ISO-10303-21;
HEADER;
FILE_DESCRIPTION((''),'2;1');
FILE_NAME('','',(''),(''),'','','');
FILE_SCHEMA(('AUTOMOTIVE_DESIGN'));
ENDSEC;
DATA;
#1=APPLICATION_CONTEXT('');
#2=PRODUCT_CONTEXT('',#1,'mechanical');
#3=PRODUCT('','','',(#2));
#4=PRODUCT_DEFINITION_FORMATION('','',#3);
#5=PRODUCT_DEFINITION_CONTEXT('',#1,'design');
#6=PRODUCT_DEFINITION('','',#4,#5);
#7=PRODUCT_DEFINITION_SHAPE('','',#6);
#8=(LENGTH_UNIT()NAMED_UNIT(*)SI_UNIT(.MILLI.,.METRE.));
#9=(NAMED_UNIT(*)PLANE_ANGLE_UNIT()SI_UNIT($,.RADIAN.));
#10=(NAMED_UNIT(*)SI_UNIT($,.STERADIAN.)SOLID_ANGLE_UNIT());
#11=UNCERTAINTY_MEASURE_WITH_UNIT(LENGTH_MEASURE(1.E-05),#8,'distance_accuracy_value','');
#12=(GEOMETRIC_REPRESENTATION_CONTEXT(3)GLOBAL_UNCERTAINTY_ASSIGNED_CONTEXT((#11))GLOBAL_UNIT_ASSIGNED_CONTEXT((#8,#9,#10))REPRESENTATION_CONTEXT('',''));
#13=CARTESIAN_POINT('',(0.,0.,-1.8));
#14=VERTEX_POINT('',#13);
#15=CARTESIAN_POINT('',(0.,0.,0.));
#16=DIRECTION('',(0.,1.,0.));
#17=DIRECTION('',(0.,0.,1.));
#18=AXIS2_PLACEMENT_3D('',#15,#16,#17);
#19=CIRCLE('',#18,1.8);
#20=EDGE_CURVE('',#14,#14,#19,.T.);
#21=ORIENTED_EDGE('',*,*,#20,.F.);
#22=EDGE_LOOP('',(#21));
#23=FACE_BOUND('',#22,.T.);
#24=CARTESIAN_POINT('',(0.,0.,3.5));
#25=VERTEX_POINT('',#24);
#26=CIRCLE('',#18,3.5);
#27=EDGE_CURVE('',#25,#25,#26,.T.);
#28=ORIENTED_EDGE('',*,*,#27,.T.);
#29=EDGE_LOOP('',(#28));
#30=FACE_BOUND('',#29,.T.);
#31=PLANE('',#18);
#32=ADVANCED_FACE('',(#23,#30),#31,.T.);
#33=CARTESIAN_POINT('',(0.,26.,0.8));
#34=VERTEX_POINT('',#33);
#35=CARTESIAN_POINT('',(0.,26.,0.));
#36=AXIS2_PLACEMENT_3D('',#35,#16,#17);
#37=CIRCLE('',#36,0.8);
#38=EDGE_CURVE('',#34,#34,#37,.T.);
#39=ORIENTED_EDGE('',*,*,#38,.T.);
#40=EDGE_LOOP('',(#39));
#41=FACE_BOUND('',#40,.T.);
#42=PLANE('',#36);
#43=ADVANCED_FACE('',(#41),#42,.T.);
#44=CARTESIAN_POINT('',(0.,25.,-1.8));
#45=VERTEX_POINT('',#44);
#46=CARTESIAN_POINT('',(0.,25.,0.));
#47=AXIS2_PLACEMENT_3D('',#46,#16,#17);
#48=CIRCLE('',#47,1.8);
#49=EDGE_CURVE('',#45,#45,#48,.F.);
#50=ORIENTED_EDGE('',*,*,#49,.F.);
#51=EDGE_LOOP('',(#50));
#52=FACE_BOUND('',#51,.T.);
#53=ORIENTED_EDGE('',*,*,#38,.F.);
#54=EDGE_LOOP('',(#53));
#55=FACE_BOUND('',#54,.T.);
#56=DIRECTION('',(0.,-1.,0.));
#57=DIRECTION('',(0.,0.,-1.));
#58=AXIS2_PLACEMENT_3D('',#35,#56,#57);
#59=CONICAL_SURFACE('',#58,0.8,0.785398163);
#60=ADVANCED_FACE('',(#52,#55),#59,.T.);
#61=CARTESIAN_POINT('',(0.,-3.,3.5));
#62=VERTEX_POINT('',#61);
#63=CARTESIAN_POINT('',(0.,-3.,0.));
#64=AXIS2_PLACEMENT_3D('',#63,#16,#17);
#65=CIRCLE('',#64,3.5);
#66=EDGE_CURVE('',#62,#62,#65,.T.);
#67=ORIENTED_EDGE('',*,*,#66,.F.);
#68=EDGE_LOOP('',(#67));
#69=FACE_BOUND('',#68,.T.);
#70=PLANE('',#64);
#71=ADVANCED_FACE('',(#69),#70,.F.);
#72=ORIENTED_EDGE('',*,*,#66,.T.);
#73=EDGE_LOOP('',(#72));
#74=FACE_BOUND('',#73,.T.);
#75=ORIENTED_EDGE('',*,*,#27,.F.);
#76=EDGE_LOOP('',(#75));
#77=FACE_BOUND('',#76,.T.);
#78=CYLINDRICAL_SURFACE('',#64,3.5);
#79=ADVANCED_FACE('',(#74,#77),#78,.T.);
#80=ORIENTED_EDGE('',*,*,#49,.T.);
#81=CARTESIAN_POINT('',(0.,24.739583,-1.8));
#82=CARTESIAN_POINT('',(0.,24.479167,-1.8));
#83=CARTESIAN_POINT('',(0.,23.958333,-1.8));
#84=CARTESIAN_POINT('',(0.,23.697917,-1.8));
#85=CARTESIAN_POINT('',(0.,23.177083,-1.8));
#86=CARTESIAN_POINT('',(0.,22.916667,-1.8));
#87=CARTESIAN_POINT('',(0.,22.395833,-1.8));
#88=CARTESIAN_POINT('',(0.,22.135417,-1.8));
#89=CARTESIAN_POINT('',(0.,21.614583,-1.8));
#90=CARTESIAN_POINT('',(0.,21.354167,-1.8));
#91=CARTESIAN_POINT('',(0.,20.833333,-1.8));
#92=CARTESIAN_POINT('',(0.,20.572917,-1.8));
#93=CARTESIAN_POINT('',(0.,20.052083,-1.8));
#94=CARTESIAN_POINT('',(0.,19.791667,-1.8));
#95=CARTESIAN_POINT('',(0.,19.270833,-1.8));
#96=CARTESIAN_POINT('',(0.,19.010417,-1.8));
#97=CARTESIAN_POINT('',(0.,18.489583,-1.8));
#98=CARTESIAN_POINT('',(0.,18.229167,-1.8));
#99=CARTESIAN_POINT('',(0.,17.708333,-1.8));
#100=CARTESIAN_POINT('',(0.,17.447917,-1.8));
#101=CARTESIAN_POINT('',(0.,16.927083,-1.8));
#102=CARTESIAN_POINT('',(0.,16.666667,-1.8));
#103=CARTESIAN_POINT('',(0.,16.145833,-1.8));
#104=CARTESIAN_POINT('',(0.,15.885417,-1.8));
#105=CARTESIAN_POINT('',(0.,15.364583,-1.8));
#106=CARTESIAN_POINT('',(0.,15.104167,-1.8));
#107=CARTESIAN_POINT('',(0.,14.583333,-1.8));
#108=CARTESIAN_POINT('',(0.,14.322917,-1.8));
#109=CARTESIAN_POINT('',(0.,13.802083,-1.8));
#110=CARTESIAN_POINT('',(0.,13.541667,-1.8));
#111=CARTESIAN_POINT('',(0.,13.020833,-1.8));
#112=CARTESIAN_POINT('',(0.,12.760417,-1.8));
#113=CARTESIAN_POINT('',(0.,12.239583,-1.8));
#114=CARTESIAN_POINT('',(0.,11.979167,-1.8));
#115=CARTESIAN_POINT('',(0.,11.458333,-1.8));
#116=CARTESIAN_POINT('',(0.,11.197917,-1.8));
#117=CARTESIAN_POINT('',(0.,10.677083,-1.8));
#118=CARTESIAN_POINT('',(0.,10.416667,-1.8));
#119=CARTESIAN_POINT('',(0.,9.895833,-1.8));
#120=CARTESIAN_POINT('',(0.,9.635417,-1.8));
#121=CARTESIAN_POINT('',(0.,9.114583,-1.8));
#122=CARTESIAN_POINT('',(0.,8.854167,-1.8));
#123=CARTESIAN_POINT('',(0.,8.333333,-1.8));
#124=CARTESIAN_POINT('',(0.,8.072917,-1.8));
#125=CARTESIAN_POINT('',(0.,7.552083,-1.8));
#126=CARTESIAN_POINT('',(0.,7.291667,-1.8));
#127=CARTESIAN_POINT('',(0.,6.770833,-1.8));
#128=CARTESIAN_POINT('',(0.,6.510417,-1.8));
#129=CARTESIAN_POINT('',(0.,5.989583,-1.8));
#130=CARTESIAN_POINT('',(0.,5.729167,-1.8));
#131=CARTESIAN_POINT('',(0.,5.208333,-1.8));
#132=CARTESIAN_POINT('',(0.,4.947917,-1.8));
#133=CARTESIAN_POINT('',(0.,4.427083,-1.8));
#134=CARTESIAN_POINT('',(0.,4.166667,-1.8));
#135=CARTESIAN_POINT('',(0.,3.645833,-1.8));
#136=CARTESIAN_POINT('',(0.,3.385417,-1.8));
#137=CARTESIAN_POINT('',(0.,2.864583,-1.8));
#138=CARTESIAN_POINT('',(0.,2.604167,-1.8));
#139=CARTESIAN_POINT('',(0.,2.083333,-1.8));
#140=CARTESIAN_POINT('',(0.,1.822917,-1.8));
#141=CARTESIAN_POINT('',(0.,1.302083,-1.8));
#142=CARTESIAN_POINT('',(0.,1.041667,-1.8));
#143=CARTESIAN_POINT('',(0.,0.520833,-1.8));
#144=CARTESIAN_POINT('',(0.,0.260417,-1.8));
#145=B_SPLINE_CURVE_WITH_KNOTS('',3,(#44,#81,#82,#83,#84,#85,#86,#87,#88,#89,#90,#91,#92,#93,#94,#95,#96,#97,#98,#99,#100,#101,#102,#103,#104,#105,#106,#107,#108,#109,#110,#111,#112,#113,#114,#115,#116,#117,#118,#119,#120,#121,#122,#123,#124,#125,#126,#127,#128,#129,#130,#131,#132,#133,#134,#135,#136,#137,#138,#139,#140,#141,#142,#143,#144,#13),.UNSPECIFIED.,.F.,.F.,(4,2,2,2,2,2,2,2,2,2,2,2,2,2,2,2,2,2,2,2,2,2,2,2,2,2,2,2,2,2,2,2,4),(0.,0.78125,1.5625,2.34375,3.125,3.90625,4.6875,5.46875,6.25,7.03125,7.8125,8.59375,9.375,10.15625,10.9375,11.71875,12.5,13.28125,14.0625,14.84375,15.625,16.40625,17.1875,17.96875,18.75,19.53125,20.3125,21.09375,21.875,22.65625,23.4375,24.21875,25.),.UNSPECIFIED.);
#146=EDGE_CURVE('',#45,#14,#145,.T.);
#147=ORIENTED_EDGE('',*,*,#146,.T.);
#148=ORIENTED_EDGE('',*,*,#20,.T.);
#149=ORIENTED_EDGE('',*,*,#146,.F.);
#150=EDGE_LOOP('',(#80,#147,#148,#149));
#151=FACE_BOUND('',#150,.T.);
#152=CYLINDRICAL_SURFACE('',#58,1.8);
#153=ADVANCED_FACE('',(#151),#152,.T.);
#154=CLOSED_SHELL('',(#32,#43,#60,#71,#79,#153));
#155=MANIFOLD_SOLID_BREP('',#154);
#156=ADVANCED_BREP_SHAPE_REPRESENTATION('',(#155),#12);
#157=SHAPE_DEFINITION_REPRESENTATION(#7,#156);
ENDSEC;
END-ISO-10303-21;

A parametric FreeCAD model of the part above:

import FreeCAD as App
import Part
import Sketcher


def edges_at(feature, points):
    """Names of the edges that pass closest to the given points."""
    edges = feature.Shape.Edges
    near = lambda p: min(range(len(edges)), key=lambda i: edges[i].distToShape(Part.Vertex(*p))[0])
    return sorted({f"Edge{near(p) + 1}" for p in points})

doc = App.newDocument("Part")
body = doc.addObject("PartDesign::Body", "Body")

sketch1 = body.newObject("Sketcher::SketchObject", "Sketch")
sketch1.AttachmentSupport = (doc.getObject("XZ_Plane"), [""])
sketch1.MapMode = "FlatFace"
sketch1.addGeometry(Part.Circle(App.Vector(0, 0, 0), App.Vector(0, 0, 1), 3.5), False)
sketch1.addConstraint([
    Sketcher.Constraint("Coincident", 0, 3, -1, 1),
    Sketcher.Constraint("Diameter", 0, 7.0),
])
pad1 = body.newObject("PartDesign::Pad", "Pad")
pad1.Profile = sketch1
pad1.Length = 3

sketch2 = body.newObject("Sketcher::SketchObject", "Sketch001")
sketch2.AttachmentSupport = (doc.getObject("XZ_Plane"), [""])
sketch2.MapMode = "FlatFace"
sketch2.addGeometry(Part.Circle(App.Vector(0, 0, 0), App.Vector(0, 0, 1), 1.8), False)
sketch2.addConstraint([
    Sketcher.Constraint("Coincident", 0, 3, -1, 1),
    Sketcher.Constraint("Diameter", 0, 3.6),
])
pad2 = body.newObject("PartDesign::Pad", "Pad001")
pad2.Profile = sketch2
pad2.Length = 26
pad2.Reversed = True
doc.recompute()

chamfer = body.newObject("PartDesign::Chamfer", "Chamfer")
chamfer.Base = (pad2, edges_at(pad2, [(0, 26, 1.8)]))
chamfer.Size = 1

doc.recompute()
